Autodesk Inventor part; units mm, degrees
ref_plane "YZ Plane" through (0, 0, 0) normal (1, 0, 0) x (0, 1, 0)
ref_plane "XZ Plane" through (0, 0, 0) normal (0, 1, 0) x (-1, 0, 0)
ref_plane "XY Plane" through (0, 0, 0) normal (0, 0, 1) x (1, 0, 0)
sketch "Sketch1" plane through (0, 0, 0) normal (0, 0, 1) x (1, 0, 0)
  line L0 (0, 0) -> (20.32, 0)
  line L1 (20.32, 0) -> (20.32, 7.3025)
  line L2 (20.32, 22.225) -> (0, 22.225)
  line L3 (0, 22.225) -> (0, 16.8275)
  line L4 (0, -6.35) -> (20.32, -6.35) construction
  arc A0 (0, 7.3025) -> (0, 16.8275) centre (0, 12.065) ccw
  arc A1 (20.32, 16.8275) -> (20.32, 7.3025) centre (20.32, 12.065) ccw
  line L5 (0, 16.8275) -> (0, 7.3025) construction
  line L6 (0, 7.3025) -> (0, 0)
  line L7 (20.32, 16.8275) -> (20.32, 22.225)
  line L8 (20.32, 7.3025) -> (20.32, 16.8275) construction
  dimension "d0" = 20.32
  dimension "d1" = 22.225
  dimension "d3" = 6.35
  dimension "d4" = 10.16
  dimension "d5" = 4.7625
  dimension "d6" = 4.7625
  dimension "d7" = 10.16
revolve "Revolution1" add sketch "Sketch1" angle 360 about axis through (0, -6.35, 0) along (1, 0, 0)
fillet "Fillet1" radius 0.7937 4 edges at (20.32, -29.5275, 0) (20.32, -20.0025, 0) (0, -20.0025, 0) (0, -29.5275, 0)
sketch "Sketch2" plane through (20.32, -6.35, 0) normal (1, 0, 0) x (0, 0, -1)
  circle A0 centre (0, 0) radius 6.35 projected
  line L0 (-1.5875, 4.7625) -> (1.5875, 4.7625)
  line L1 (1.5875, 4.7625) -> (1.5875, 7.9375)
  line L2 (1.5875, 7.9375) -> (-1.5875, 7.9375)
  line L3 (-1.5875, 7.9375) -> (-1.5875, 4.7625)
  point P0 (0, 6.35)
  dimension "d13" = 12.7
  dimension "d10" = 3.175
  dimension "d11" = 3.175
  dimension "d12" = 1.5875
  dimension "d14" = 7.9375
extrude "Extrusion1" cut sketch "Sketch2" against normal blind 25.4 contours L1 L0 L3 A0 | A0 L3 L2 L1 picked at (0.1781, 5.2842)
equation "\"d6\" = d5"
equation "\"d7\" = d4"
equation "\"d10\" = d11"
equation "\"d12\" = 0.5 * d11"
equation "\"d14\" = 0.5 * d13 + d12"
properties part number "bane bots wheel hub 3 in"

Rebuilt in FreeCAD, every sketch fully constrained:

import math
import FreeCAD as App
import Part
import Sketcher

V = App.Vector
Q = App.Units.Quantity


def edges_at(feature, points):
    """Names of the edges that pass closest to the given points."""
    edges = feature.Shape.Edges
    near = lambda p: min(range(len(edges)), key=lambda i: edges[i].distToShape(Part.Vertex(*p))[0])
    return sorted({f"Edge{near(p) + 1}" for p in points})


def add_polygon(sketch, points):
    """Adds a closed chain of lines whose ends are joined by coincident constraints."""
    first, n = sketch.GeometryCount, len(points)
    for a, b in zip(points, points[1:] + points[:1]):
        sketch.addGeometry(Part.LineSegment(App.Vector(*a, 0), App.Vector(*b, 0)), False)
    for i in range(n):
        sketch.addConstraint(Sketcher.Constraint("Coincident", first + i, 2, first + (i + 1) % n, 1))

doc = App.newDocument("Part")
body = doc.addObject("PartDesign::Body", "Body")

# Sketch on XY plane
sketch1 = body.newObject("Sketcher::SketchObject", "Sketch")
sketch1.AttachmentSupport = (doc.getObject("XY_Plane"), [""])
sketch1.MapMode = "FlatFace"
sketch1.addGeometry([
    Part.LineSegment(V(0, 7.3025, 0), V(0, 0, 0)),  # 0
    Part.LineSegment(V(0, 0, 0), V(20.32, 0, 0)),  # 1
    Part.LineSegment(V(20.32, 0, 0), V(20.32, 7.3025, 0)),  # 2
    Part.ArcOfCircle(Part.Circle(V(20.32, 12.065, 0), V(0, 0, 1), 4.7625), math.radians(90), math.radians(270)),  # 3
    Part.LineSegment(V(20.32, 16.8275, 0), V(20.32, 22.225, 0)),  # 4
    Part.LineSegment(V(20.32, 22.225, 0), V(0, 22.225, 0)),  # 5
    Part.LineSegment(V(0, 22.225, 0), V(0, 16.8275, 0)),  # 6
    Part.ArcOfCircle(Part.Circle(V(0, 12.065, 0), V(0, 0, 1), 4.7625), math.radians(-90), math.radians(90)),  # 7
], False)
sketch1.addGeometry(Part.LineSegment(V(0, -6.35, 0), V(20.32, -6.35, 0)), True)  # axis
sketch1.addConstraint([
    Sketcher.Constraint("Coincident", 0, 2, 1, 1),
    Sketcher.Constraint("Coincident", 1, 2, 2, 1),
    Sketcher.Constraint("Coincident", 2, 2, 3, 2),
    Sketcher.Constraint("Coincident", 3, 1, 4, 1),
    Sketcher.Constraint("Coincident", 4, 2, 5, 1),
    Sketcher.Constraint("Coincident", 5, 2, 6, 1),
    Sketcher.Constraint("Coincident", 6, 2, 7, 2),
    Sketcher.Constraint("Coincident", 7, 1, 0, 1),
    Sketcher.Constraint("Vertical", 0),
    Sketcher.Constraint("Horizontal", 1),
    Sketcher.Constraint("Vertical", 2),
    Sketcher.Constraint("Vertical", 4),
    Sketcher.Constraint("Horizontal", 5),
    Sketcher.Constraint("Vertical", 6),
    Sketcher.Constraint("Horizontal", 8),
    Sketcher.Constraint("Coincident", 0, 2, -1, 1),
    Sketcher.Constraint("Equal", 3, 7),
    Sketcher.Constraint("PointOnObject", 7, 3, -2),
    Sketcher.Constraint("PointOnObject", 5, 2, -2),
    Sketcher.Constraint("PointOnObject", 8, 1, -2),
    Sketcher.Constraint("Horizontal", 3, 3, 7, 3),
    Sketcher.Constraint("Vertical", 3, 3, 1, 2),
    Sketcher.Constraint("Vertical", 2, 2, 3, 1),
    Sketcher.Constraint("Vertical", 4, 2, 8, 2),
    Sketcher.Constraint("DistanceX", 1, 1, 1, 2, Q("0.8 in")),
    Sketcher.Constraint("Radius", 3, Q("0.1875 in")),
    Sketcher.Constraint("DistanceY", 3, 3, 4, 2, Q("0.4 in")),
    Sketcher.Constraint("DistanceY", 8, 1, -1, 1, Q("0.25 in")),
    Sketcher.Constraint("DistanceY", -1, 1, 4, 2, Q("0.875 in")),
])
revolution = body.newObject("PartDesign::Revolution", "Revolution")
revolution.Profile = sketch1
revolution.ReferenceAxis = (sketch1, ["Axis0"])
revolution.Angle = 360
doc.recompute()

fillet = body.newObject("PartDesign::Fillet", "Fillet")
fillet.Base = (revolution, edges_at(revolution, [
    (20.32, -29.527, 0),
    (20.32, -20.003, 0),
    (0, -20.003, 0),
    (0, -29.527, 0),
]))
fillet.Radius = Q("0.031248 in")

# Sketch on YZ plane
sketch2 = body.newObject("Sketcher::SketchObject", "Sketch001")
sketch2.AttachmentSupport = (doc.getObject("YZ_Plane"), [""])
sketch2.MapMode = "FlatFace"
sketch2.AttachmentOffset = App.Placement(V(0, 0, 0.8 * 25.4), App.Rotation())
add_polygon(sketch2, [(-1.5875, -1.5875), (1.5875, -1.5875), (1.5875, 1.5875), (-1.5875, 1.5875)])  # lines 0-3
sketch2.addConstraint([
    Sketcher.Constraint("Horizontal", 0),
    Sketcher.Constraint("Vertical", 1),
    Sketcher.Constraint("Horizontal", 2),
    Sketcher.Constraint("Vertical", 3),
    Sketcher.Constraint("Symmetric", 0, 2, 2, 2, -1, 1),
    Sketcher.Constraint("Equal", 2, 1),
    Sketcher.Constraint("DistanceX", 0, 1, 0, 2, Q("0.125 in")),
])
pocket1 = body.newObject("PartDesign::Pocket", "Pocket")
pocket1.Profile = sketch2
pocket1.Length = Q("1 in")

doc.recompute()
